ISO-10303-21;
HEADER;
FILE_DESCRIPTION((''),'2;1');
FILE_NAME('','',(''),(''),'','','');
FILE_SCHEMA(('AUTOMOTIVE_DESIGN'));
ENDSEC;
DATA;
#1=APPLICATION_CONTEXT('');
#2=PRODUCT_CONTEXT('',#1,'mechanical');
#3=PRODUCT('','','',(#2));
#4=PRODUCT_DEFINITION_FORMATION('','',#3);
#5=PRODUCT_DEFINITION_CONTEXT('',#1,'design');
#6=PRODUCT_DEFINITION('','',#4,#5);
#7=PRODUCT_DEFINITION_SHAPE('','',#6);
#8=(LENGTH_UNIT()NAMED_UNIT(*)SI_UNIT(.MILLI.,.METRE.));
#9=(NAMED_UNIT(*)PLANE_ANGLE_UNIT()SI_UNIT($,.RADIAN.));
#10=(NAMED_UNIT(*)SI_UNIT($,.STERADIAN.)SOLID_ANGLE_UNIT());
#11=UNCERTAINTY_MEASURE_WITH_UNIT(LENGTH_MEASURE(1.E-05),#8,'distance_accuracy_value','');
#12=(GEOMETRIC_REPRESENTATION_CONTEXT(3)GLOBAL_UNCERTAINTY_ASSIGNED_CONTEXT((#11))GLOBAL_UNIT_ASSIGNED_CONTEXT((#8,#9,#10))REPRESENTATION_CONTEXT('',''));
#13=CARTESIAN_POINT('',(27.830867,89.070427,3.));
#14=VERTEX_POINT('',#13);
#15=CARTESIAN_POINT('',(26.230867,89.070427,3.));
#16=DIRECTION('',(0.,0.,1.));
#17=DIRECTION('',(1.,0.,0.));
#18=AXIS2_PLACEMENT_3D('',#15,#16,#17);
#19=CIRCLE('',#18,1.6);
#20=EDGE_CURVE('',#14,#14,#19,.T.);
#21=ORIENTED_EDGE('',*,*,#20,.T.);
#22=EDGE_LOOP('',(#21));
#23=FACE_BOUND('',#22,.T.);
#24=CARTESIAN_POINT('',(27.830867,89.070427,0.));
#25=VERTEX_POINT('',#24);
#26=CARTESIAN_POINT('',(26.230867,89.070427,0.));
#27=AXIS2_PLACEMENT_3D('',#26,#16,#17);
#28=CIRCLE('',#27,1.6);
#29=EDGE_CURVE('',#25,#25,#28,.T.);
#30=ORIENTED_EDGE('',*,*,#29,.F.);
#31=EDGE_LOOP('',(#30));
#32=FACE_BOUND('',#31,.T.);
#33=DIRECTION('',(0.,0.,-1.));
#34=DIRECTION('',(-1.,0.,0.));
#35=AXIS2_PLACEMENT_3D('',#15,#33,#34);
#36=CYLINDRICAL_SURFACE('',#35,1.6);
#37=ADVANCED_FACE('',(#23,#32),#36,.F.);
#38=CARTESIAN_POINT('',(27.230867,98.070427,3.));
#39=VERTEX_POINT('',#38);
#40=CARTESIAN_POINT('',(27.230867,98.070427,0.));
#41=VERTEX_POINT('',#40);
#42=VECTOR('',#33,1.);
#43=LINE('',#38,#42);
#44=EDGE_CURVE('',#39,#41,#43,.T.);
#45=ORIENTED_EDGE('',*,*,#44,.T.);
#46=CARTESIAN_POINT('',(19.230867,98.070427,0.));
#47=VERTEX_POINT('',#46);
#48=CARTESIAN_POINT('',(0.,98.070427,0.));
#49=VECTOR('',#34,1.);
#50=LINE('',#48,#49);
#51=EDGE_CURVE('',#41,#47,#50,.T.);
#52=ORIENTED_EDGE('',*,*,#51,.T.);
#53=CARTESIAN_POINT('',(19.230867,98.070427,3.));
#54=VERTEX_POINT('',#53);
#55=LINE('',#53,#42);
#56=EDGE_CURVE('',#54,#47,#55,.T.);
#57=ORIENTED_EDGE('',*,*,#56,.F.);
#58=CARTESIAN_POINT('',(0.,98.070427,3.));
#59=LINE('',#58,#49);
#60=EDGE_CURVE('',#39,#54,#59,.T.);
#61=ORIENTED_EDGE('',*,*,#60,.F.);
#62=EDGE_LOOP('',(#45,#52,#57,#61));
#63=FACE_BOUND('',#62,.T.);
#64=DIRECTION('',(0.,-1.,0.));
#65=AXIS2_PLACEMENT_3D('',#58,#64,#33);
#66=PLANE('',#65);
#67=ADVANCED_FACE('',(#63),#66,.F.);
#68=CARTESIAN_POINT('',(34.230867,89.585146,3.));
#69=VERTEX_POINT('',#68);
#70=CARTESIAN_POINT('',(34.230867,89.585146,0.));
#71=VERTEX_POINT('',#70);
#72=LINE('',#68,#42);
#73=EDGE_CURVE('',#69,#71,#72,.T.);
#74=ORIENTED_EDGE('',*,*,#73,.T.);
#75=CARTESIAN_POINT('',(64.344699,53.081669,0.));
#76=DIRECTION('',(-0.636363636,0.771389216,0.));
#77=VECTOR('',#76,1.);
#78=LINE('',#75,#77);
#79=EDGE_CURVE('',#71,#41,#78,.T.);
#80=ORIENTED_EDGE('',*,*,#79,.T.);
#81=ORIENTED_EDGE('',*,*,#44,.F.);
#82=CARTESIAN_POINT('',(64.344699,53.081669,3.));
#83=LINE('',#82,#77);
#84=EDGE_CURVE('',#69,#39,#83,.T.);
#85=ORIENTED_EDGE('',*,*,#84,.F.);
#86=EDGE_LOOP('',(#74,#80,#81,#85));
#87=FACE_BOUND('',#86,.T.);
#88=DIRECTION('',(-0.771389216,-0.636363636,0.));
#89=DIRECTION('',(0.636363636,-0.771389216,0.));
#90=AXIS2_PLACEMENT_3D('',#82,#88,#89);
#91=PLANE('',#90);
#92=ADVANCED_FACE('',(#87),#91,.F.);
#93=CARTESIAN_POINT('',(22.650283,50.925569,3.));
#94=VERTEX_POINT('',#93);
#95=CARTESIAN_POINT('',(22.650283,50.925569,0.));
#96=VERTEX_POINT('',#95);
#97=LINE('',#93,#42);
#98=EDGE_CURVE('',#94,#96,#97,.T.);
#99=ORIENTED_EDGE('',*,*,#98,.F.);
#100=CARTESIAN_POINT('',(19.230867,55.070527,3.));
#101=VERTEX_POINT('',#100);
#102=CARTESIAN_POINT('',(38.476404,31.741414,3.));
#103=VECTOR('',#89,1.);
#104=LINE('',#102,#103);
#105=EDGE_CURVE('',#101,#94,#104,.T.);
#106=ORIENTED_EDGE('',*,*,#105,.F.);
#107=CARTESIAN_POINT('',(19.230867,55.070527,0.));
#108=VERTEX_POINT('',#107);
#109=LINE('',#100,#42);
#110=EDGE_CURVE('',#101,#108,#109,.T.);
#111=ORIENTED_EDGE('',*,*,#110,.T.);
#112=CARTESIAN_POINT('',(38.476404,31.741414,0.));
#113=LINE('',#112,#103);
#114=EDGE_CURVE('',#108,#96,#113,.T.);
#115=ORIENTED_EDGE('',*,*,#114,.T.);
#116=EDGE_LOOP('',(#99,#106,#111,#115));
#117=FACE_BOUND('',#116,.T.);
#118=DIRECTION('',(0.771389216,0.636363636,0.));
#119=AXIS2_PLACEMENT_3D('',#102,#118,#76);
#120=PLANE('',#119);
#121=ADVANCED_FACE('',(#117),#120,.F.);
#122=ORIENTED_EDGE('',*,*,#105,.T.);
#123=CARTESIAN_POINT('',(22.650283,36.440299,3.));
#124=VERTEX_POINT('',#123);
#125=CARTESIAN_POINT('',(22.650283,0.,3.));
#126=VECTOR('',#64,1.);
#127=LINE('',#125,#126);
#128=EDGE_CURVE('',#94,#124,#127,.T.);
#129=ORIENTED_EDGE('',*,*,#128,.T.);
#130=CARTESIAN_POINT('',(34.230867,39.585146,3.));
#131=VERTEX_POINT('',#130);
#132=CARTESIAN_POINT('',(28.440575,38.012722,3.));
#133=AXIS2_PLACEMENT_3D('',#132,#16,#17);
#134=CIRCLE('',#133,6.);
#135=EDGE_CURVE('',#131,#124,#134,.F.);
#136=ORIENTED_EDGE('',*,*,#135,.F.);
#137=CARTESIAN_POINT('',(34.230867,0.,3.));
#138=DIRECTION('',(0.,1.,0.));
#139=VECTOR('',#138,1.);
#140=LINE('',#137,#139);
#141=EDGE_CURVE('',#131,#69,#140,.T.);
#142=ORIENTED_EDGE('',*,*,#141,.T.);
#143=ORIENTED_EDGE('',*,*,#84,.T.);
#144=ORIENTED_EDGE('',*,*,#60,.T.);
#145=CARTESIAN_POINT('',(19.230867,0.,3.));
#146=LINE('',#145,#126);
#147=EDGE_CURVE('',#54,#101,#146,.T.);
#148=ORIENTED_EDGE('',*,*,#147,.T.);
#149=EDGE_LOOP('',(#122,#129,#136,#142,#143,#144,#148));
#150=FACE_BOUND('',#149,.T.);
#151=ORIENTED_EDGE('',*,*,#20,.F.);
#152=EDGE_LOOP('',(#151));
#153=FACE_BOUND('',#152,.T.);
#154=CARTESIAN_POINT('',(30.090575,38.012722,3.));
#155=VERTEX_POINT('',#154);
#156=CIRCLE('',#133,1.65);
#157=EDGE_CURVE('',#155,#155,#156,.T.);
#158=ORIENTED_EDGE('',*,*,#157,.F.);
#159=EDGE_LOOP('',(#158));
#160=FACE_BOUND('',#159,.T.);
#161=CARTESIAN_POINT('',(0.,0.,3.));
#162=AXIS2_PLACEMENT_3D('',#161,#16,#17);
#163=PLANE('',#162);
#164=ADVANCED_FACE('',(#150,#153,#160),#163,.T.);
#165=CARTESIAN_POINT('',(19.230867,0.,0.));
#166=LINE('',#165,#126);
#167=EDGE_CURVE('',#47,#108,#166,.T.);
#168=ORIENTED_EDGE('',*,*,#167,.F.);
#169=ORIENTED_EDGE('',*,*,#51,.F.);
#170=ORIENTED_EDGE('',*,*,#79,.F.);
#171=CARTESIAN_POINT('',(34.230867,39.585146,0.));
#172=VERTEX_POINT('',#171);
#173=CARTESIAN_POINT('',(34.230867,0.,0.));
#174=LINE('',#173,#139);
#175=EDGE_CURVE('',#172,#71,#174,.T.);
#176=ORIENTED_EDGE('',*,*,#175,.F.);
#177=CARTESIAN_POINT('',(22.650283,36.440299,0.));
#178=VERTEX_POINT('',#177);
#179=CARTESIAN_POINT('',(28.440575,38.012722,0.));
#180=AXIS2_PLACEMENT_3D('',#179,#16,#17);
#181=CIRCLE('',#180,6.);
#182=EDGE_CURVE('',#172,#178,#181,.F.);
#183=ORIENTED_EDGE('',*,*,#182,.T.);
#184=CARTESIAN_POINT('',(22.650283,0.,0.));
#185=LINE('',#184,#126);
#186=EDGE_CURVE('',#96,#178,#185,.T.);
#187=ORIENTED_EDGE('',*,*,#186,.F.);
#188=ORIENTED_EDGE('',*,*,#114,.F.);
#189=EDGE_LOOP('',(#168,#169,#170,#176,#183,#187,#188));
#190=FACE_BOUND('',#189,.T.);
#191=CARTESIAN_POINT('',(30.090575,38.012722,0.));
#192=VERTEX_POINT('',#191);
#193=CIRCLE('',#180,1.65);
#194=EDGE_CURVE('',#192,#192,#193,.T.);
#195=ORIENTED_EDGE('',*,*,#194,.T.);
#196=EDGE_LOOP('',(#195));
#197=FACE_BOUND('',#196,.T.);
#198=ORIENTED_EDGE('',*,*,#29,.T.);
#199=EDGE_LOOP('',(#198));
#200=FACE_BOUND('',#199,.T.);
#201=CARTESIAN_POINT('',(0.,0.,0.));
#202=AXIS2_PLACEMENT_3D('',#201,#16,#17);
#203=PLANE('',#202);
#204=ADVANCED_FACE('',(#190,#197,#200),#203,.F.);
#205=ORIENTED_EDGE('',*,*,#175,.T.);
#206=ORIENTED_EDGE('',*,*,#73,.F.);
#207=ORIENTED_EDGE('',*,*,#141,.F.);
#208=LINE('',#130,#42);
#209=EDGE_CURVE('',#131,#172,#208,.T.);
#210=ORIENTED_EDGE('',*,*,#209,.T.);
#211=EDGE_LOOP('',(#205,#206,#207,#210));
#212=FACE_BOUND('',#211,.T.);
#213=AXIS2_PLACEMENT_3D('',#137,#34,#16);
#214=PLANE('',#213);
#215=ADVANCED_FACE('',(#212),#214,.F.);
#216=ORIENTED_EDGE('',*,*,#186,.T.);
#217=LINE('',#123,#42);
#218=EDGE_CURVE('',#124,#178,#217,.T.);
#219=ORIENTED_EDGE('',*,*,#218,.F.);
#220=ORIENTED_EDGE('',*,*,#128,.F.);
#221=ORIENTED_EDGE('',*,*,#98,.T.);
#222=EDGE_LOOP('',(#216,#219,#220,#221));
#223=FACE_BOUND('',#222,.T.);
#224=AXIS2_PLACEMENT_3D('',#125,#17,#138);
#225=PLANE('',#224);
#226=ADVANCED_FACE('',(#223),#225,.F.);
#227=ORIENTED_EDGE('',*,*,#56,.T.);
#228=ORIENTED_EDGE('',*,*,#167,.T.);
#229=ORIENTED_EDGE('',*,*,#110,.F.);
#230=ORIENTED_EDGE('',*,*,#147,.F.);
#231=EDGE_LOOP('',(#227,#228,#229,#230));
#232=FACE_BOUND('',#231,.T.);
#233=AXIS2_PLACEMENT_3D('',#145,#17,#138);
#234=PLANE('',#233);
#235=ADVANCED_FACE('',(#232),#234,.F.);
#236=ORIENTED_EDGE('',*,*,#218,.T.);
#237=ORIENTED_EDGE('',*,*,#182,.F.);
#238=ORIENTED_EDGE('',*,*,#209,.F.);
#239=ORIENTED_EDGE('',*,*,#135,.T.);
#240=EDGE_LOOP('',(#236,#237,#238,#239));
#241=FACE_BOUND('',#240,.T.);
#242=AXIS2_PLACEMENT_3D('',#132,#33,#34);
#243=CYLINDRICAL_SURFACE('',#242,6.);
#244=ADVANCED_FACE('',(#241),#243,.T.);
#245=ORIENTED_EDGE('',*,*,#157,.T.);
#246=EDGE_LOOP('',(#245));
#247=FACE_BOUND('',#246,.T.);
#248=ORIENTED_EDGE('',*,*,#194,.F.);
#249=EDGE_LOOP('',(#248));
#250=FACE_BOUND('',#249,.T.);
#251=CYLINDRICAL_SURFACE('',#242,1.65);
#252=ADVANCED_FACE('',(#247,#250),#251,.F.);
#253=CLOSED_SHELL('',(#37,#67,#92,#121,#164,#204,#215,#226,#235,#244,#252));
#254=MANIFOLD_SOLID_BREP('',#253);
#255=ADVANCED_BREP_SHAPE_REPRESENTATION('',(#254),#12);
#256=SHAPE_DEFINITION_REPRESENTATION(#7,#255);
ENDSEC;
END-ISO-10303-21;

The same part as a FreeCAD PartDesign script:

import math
import FreeCAD as App
import Part
import Sketcher
from FreeCAD import Vector

doc = App.newDocument("Part")
body = doc.addObject("PartDesign::Body", "Body")

sketch1 = body.newObject("Sketcher::SketchObject", "Sketch")
sketch1.AttachmentSupport = (doc.getObject("XY_Plane"), [""])
sketch1.MapMode = "FlatFace"
sketch1.addGeometry([
    Part.LineSegment(Vector(22.7, 50.9, 0), Vector(22.7, 36.4, 0)),
    Part.ArcOfCircle(Part.Circle(Vector(28.4, 38, 0), Vector(0, 0, 1), 6), math.radians(-165), math.radians(15)),
    Part.LineSegment(Vector(34.2, 39.6, 0), Vector(34.2, 89.6, 0)),
    Part.LineSegment(Vector(34.2, 89.6, 0), Vector(27.2, 98.1, 0)),
    Part.LineSegment(Vector(27.2, 98.1, 0), Vector(19.2, 98.1, 0)),
    Part.LineSegment(Vector(19.2, 98.1, 0), Vector(19.2, 55.1, 0)),
    Part.LineSegment(Vector(19.2, 55.1, 0), Vector(22.7, 50.9, 0)),
    Part.Circle(Vector(28.4, 38, 0), Vector(0, 0, 1), 1.6),
    Part.Circle(Vector(26.2, 89.1, 0), Vector(0, 0, 1), 1.6),
], False)
sketch1.addConstraint([
    Sketcher.Constraint("Coincident", 0, 2, 1, 1),
    Sketcher.Constraint("Coincident", 1, 2, 2, 1),
    Sketcher.Constraint("Coincident", 2, 2, 3, 1),
    Sketcher.Constraint("Coincident", 3, 2, 4, 1),
    Sketcher.Constraint("Coincident", 4, 2, 5, 1),
    Sketcher.Constraint("Coincident", 5, 2, 6, 1),
    Sketcher.Constraint("Coincident", 6, 2, 0, 1),
    Sketcher.Constraint("Vertical", 0),
    Sketcher.Constraint("Vertical", 2),
    Sketcher.Constraint("Horizontal", 4),
    Sketcher.Constraint("Vertical", 5),
    Sketcher.Constraint("Coincident", 7, 3, 1, 3),
    Sketcher.Constraint("Parallel", 3, 6),
    Sketcher.Constraint("Radius", 1, 6.0),
    Sketcher.Constraint("Diameter", 7, 3.3),
    Sketcher.Constraint("Diameter", 8, 3.2),
    Sketcher.Constraint("DistanceX", 4, 2, 4, 1, 8.0),
    Sketcher.Constraint("DistanceY", 2, 1, 2, 2, 50.0),
    Sketcher.Constraint("Distance", 3, 11.0),
    Sketcher.Constraint("DistanceX", 8, 3, 1, 2, 8.0),
    Sketcher.Constraint("DistanceX", 8, 3, 3, 2, 1.0),
    Sketcher.Constraint("DistanceY", 8, 3, 3, 2, 9.0),
    Sketcher.Constraint("DistanceY", 5, 2, 5, 1, 42.999901),
    Sketcher.Constraint("DistanceY", 0, 2, 0, 1, 14.48527),
    Sketcher.Constraint("DistanceY", -1, 1, 0, 2, 36.440299),
    Sketcher.Constraint("DistanceX", -1, 1, 1, 3, 28.440575),
    Sketcher.Constraint("DistanceY", -1, 1, 1, 3, 38.012722),
])
pad1 = body.newObject("PartDesign::Pad", "Pad")
pad1.Profile = sketch1
pad1.Length = 3

doc.recompute()
